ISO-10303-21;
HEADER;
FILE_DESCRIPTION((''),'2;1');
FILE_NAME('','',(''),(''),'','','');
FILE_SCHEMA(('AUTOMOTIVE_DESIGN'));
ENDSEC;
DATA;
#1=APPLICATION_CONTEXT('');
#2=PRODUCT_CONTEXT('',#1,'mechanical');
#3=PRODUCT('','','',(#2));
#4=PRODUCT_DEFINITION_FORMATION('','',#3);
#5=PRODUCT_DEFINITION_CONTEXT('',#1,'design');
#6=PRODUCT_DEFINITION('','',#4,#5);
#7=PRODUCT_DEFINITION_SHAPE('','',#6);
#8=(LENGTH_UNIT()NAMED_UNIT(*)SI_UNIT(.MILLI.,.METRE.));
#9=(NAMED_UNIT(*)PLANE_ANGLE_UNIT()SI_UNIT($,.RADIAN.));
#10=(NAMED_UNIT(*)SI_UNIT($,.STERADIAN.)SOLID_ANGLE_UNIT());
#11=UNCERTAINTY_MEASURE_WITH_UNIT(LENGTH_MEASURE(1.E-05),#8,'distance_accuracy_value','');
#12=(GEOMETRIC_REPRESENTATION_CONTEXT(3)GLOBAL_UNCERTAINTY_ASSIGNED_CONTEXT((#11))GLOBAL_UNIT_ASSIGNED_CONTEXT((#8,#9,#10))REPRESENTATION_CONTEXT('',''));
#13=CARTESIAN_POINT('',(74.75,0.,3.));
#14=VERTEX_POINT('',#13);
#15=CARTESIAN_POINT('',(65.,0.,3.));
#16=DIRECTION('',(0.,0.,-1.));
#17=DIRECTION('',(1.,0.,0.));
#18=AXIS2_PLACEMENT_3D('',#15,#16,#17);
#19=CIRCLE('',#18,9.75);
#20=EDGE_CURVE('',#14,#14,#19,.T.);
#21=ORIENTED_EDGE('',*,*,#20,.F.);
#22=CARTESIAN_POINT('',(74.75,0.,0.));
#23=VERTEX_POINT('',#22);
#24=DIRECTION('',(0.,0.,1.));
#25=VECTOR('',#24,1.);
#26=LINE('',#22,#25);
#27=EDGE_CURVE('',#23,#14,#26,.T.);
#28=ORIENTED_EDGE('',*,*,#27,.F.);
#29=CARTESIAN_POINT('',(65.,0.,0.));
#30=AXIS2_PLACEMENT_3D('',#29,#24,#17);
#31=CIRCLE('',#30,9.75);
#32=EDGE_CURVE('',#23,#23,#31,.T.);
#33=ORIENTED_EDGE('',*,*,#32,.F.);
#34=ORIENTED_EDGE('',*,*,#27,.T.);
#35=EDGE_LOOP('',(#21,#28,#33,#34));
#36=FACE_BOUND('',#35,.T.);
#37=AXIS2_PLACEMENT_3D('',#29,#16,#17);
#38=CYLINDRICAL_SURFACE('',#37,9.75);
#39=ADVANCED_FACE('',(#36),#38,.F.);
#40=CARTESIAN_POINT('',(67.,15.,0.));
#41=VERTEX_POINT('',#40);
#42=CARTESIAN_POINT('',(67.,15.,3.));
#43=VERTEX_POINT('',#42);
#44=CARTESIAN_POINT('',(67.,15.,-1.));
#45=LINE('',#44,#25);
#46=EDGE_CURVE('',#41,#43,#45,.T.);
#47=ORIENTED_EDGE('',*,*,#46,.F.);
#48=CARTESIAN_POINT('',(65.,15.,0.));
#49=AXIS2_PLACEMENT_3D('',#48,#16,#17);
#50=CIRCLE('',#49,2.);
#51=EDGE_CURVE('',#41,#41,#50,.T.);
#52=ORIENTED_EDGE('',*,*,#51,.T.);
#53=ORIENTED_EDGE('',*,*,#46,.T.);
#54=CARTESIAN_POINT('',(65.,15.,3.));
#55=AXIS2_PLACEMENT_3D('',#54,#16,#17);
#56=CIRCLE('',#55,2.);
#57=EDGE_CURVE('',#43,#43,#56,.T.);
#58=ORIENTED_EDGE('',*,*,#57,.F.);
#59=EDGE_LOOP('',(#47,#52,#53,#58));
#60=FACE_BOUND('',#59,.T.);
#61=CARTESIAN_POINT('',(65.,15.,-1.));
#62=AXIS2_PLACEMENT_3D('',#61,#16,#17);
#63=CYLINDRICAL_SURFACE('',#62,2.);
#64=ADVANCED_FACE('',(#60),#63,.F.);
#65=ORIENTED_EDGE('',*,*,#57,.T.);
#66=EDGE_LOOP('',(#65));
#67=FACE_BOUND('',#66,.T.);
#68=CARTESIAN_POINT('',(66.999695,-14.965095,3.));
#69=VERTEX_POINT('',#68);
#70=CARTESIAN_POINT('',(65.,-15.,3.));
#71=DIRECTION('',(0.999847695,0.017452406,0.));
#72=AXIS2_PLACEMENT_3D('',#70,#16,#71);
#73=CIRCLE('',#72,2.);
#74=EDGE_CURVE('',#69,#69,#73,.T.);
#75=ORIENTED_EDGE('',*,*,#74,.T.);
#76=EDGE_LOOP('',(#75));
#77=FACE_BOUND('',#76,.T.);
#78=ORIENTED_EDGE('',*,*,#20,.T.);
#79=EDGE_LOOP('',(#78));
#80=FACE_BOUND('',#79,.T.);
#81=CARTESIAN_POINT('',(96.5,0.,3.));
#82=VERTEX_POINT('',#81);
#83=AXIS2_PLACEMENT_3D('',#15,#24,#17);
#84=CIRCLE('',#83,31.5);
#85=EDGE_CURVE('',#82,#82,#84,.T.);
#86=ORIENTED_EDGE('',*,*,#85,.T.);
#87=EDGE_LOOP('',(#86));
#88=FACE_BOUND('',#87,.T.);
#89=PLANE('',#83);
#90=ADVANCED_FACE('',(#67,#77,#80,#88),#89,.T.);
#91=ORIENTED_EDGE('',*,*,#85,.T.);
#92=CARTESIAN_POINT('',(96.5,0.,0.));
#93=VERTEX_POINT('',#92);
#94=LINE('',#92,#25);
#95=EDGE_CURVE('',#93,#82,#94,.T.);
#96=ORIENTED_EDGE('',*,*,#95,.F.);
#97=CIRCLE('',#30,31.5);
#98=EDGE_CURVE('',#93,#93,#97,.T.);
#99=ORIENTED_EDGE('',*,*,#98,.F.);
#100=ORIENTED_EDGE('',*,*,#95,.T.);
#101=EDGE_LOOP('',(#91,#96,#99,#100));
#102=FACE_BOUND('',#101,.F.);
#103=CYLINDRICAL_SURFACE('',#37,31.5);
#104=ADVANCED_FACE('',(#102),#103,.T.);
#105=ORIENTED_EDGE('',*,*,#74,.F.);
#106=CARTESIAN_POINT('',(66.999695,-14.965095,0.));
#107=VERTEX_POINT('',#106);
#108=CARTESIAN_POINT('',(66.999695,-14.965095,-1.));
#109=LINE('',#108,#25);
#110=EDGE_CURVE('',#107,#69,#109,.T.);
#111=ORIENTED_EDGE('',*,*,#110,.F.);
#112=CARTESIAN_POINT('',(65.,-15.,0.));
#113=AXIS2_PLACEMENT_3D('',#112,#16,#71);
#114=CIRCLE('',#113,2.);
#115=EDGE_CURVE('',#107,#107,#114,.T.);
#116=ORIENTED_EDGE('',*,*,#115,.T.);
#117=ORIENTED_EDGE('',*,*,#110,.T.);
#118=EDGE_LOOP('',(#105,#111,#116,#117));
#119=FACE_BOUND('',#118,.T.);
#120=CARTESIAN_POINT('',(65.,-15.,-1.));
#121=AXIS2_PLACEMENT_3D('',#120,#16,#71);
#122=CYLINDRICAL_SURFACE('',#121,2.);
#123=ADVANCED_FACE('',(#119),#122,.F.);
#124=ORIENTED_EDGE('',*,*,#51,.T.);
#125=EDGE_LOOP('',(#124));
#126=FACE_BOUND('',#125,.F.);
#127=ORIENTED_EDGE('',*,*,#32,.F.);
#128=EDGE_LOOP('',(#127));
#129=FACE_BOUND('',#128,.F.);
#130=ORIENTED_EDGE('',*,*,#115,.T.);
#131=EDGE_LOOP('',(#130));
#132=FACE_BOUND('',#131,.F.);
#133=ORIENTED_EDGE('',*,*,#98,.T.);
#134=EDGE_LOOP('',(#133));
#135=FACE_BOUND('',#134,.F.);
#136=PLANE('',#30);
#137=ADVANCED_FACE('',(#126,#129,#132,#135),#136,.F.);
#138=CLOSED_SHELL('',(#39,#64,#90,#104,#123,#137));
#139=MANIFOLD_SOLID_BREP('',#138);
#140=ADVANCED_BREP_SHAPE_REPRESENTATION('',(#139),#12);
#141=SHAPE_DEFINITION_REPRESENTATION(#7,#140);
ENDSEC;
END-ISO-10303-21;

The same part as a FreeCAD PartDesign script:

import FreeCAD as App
import Part
import Sketcher
Q = App.Units.Quantity

doc = App.newDocument("Part")
body = doc.addObject("PartDesign::Body", "Body")

sketch1 = body.newObject("Sketcher::SketchObject", "Sketch")
sketch1.AttachmentSupport = (doc.getObject("XY_Plane"), [""])
sketch1.MapMode = "FlatFace"
sketch1.addGeometry(Part.Circle(App.Vector(0, 0, 0), App.Vector(0, 0, 1), 2), False)
sketch1.addConstraint([
    Sketcher.Constraint("Coincident", 0, 3, -1, 1),
    Sketcher.Constraint("Diameter", 0, Q("4 mm")),
])
pad1 = body.newObject("PartDesign::Pad", "Pad")
pad1.Profile = sketch1
pad1.Length = 15
body2 = doc.addObject("PartDesign::Body", "Body001")
doc.recompute()

body.Placement = App.Placement(App.Vector(0, -15, -1), App.Rotation(App.Vector(0, 0, 1), 1))
boolean = body2.newObject("PartDesign::Boolean", "Boolean")
boolean.Type = "Fuse"
boolean.addObjects([body])
body3 = doc.addObject("PartDesign::Body", "Body002")
body3.AllowCompound = True

sketch2 = body3.newObject("Sketcher::SketchObject", "Sketch001")
sketch2.AttachmentSupport = (doc.getObject("XY_Plane002"), [""])
sketch2.MapMode = "FlatFace"
sketch2.AttachmentOffset = App.Placement(App.Vector(0, 0, -1), App.Rotation())
sketch2.addGeometry(Part.Circle(App.Vector(0, 15, 0), App.Vector(0, 0, 1), 2), False)
sketch2.addConstraint([
    Sketcher.Constraint("PointOnObject", 0, 3, -2),
    Sketcher.Constraint("Diameter", 0, Q("4 mm")),
    Sketcher.Constraint("DistanceY", -1, 1, 0, 3, Q("15 mm")),
])
pad2 = body3.newObject("PartDesign::Pad", "Pad001")
pad2.Profile = sketch2
pad2.Length = 15
doc.recompute()

boolean2 = body3.newObject("PartDesign::Boolean", "Boolean001")
boolean2.Type = "Fuse"
boolean2.addObjects([body2])
body4 = doc.addObject("PartDesign::Body", "Body003")

sketch3 = body4.newObject("Sketcher::SketchObject", "Sketch002")
sketch3.AttachmentSupport = (doc.getObject("XY_Plane003"), [""])
sketch3.MapMode = "FlatFace"
sketch3.addGeometry(Part.Circle(App.Vector(0, 0, 0), App.Vector(0, 0, 1), 9.75), False)
sketch3.addConstraint([
    Sketcher.Constraint("Coincident", 0, 3, -1, 1),
    Sketcher.Constraint("Diameter", 0, Q("19.5 mm")),
])
pad3 = body4.newObject("PartDesign::Pad", "Pad002")
pad3.Profile = sketch3
pad3.Length = 6
body5 = doc.addObject("PartDesign::Body", "Body004")

sketch4 = body5.newObject("Sketcher::SketchObject", "Sketch003")
sketch4.AttachmentSupport = (doc.getObject("XY_Plane004"), [""])
sketch4.MapMode = "FlatFace"
sketch4.addGeometry(Part.Circle(App.Vector(0, 0, 0), App.Vector(0, 0, 1), 31.5), False)
sketch4.addConstraint([
    Sketcher.Constraint("Coincident", 0, 3, -1, 1),
    Sketcher.Constraint("Diameter", 0, Q("63 mm")),
])
pad4 = body5.newObject("PartDesign::Pad", "Pad003")
pad4.Profile = sketch4
pad4.Length = 3
doc.recompute()

boolean3 = body5.newObject("PartDesign::Boolean", "Boolean002")
boolean3.Type = "Cut"
boolean3.addObjects([body4])
doc.recompute()

boolean4 = body5.newObject("PartDesign::Boolean", "Boolean003")
boolean4.Type = "Cut"
boolean4.addObjects([body3])
body6 = doc.addObject("PartDesign::Body", "Body005")
doc.recompute()

body5.Placement = App.Placement(App.Vector(65, 0, 0), App.Rotation(App.Vector(0, 0, 1), 0))
boolean5 = body6.newObject("PartDesign::Boolean", "Boolean004")
boolean5.Type = "Fuse"
boolean5.addObjects([body5])

doc.recompute()
